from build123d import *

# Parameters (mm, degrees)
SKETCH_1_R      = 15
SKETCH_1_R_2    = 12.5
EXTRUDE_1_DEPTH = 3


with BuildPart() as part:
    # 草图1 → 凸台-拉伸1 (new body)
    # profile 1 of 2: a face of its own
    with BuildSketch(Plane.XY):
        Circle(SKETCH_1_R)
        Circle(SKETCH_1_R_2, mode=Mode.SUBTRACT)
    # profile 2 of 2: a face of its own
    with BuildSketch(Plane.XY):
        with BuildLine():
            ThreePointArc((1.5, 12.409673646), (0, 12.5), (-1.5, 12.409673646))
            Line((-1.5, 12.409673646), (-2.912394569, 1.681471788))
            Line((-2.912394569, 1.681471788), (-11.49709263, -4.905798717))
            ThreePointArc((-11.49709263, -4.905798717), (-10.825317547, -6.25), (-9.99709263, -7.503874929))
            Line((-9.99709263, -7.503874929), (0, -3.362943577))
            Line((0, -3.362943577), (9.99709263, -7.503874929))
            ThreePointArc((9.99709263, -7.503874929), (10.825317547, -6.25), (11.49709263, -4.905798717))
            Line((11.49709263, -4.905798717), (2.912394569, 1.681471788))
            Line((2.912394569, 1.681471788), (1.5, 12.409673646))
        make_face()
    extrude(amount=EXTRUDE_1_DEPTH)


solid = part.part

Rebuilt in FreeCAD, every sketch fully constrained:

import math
import FreeCAD as App
import Part
import Sketcher

V = App.Vector
Q = App.Units.Quantity

doc = App.newDocument("Part")
params = doc.addObject("Spreadsheet::Sheet", "Params")
for row, (alias, value) in enumerate([
    ("sketch1_diameter", "30 mm"),
    ("sketch1_radius", "12.5 mm"),
    ("pad1_length", "3 mm"),
], start=1):
    params.set(f"A{row}", alias)
    params.set(f"B{row}", "=" + value)
    params.setAlias(f"B{row}", alias)

body = doc.addObject("PartDesign::Body", "Body")

sketch1 = doc.addObject("Sketcher::SketchObject", "Sketch")
body.addObject(sketch1)
sketch1.AttachmentSupport = (doc.XY_Plane, [""])
sketch1.MapMode = "FlatFace"
sketch1.addGeometry([
    Part.Circle(V(0, 0, 0), V(0, 0, 1), 15),
    Part.ArcOfCircle(Part.Circle(V(0, 0, 0), V(0, 0, 1), 12), math.radians(-23), math.radians(83)),
    Part.LineSegment(V(11, -5, 0), V(3, 2, 0)),
    Part.LineSegment(V(3, 2, 0), V(2, 12, 0)),
    Part.ArcOfCircle(Part.Circle(V(0, 0, 0), V(0, 0, 1), 12), math.radians(97), math.radians(203)),
    Part.LineSegment(V(-2, 12, 0), V(-3, 2, 0)),
    Part.LineSegment(V(-3, 2, 0), V(-11, -5, 0)),
    Part.ArcOfCircle(Part.Circle(V(0, 0, 0), V(0, 0, 1), 12), math.radians(-143), math.radians(-37)),
    Part.LineSegment(V(-10, -8, 0), V(0, -3, 0)),
    Part.LineSegment(V(0, -3, 0), V(10, -8, 0)),
], False)
sketch1.addConstraint([
    Sketcher.Constraint("Coincident", 1, 1, 2, 1),
    Sketcher.Constraint("Coincident", 2, 2, 3, 1),
    Sketcher.Constraint("Coincident", 3, 2, 1, 2),
    Sketcher.Constraint("Coincident", 4, 1, 5, 1),
    Sketcher.Constraint("Coincident", 5, 2, 6, 1),
    Sketcher.Constraint("Coincident", 6, 2, 4, 2),
    Sketcher.Constraint("Coincident", 7, 1, 8, 1),
    Sketcher.Constraint("Coincident", 8, 2, 9, 1),
    Sketcher.Constraint("Coincident", 9, 2, 7, 2),
    Sketcher.Constraint("Coincident", 0, 3, -1, 1),
    Sketcher.Constraint("Coincident", 1, 3, -1, 1),
    Sketcher.Constraint("Coincident", 4, 3, -1, 1),
    Sketcher.Constraint("Coincident", 7, 3, -1, 1),
    Sketcher.Constraint("Equal", 1, 4),
    Sketcher.Constraint("Equal", 4, 7),
    Sketcher.Constraint("Symmetric", 2, 2, 5, 2, -2),
    Sketcher.Constraint("PointOnObject", 8, 2, -2),
    Sketcher.Constraint("Horizontal", 3, 2, 4, 1),
    Sketcher.Constraint("Horizontal", 1, 1, 6, 2),
    Sketcher.Constraint("Horizontal", 7, 1, 9, 2),
    Sketcher.Constraint("Equal", 2, 3),
    Sketcher.Constraint("Equal", 6, 8),
    Sketcher.Constraint("Diameter", 0, Q("30 mm")),
    Sketcher.Constraint("Radius", 1, Q("12.5 mm")),
    Sketcher.Constraint("Angle", 2, Q("142.5 deg")),
    Sketcher.Constraint("Angle", 3, Q("97.5 deg")),
    Sketcher.Constraint("Angle", 8, Q("22.5 deg")),
    Sketcher.Constraint("DistanceX", 4, 1, 3, 2, Q("3 mm")),
])
sketch1.setExpression("Constraints[22]", "Params.sketch1_diameter")
sketch1.setExpression("Constraints[23]", "Params.sketch1_radius")
pad1 = doc.addObject("PartDesign::Pad", "Pad")
body.addObject(pad1)
pad1.Profile = sketch1
pad1.setExpression("Length", "Params.pad1_length")

doc.recompute()
